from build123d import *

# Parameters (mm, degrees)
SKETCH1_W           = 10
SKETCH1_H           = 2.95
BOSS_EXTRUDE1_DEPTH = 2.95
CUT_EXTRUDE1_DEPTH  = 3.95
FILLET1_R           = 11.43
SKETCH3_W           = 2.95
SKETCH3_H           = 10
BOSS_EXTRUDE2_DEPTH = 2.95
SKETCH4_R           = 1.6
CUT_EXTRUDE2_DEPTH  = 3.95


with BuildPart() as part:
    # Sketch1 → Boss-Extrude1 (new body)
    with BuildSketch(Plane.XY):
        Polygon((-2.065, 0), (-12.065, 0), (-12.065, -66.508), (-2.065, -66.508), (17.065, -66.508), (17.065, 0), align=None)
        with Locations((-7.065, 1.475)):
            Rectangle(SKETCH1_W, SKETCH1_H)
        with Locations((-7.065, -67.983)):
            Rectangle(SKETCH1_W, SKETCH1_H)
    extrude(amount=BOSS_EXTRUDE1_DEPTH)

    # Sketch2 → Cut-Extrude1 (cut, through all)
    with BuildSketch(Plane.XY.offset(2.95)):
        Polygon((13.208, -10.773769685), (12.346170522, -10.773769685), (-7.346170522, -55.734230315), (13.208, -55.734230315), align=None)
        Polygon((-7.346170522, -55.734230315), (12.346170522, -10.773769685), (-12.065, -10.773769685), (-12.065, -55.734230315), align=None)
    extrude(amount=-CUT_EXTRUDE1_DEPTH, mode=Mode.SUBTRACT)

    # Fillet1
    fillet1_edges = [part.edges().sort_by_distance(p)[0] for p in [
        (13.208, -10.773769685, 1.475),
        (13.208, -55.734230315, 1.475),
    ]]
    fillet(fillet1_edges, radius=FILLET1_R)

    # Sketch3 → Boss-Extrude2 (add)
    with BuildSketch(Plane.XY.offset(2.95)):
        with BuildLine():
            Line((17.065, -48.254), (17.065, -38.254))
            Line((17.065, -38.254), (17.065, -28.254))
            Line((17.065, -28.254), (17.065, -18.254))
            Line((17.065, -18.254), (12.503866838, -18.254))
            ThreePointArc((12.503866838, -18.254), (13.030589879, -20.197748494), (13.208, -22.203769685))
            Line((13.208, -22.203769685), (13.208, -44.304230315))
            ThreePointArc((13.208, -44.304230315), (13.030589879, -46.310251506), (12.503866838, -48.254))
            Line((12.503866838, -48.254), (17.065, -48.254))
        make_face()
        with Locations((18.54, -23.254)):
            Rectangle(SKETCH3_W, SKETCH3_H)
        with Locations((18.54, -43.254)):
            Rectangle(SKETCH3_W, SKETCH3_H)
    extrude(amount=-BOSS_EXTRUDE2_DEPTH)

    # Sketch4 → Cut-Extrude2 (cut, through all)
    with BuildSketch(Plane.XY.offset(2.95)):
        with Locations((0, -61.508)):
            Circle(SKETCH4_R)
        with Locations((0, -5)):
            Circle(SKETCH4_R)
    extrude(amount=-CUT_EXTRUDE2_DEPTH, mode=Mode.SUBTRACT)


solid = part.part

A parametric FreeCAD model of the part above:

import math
import FreeCAD as App
import Part
import Sketcher
from FreeCAD import Vector
Q = App.Units.Quantity


def edges_at(feature, points):
    """Names of the edges that pass closest to the given points."""
    edges = feature.Shape.Edges
    near = lambda p: min(range(len(edges)), key=lambda i: edges[i].distToShape(Part.Vertex(*p))[0])
    return sorted({f"Edge{near(p) + 1}" for p in points})


def add_polygon(sketch, points):
    """Adds a closed chain of lines whose ends are joined by coincident constraints."""
    first, n = sketch.GeometryCount, len(points)
    for a, b in zip(points, points[1:] + points[:1]):
        sketch.addGeometry(Part.LineSegment(App.Vector(*a, 0), App.Vector(*b, 0)), False)
    for i in range(n):
        sketch.addConstraint(Sketcher.Constraint("Coincident", first + i, 2, first + (i + 1) % n, 1))

doc = App.newDocument("Part")
params = doc.addObject("Spreadsheet::Sheet", "Params")
for row, (alias, value) in enumerate([
    ("pad1_length", "2.95 mm"),
    ("sketch2_width", "0.995 in"),
    ("fillet_radius", "0.45 in"),
    ("sketch3_radius", "0.45 in"),
    ("pad2_length", "2.95 mm"),
], start=1):
    params.set(f"A{row}", alias)
    params.set(f"B{row}", "=" + value)
    params.setAlias(f"B{row}", alias)

body = doc.addObject("PartDesign::Body", "Body")

sketch1 = body.newObject("Sketcher::SketchObject", "Sketch")
sketch1.AttachmentSupport = (doc.getObject("XY_Plane"), [""])
sketch1.MapMode = "FlatFace"
add_polygon(sketch1, [(-2.065, -66.508), (17.065, -66.508), (17.065, 0), (-2.065, 0), (-2.065, 2.95), (-12.065, 2.95), (-12.065, -69.458), (-2.065, -69.458)])
sketch1.addConstraint([
    Sketcher.Constraint("Horizontal", 0),
    Sketcher.Constraint("Vertical", 1),
    Sketcher.Constraint("Horizontal", 2),
    Sketcher.Constraint("Vertical", 3),
    Sketcher.Constraint("Horizontal", 4),
    Sketcher.Constraint("Vertical", 5),
    Sketcher.Constraint("Horizontal", 6),
    Sketcher.Constraint("Vertical", 7),
    Sketcher.Constraint("PointOnObject", 1, 2, -1),
    Sketcher.Constraint("Vertical", 3, 2, 6, 2),
    Sketcher.Constraint("Equal", 3, 7),
    Sketcher.Constraint("DistanceX", 4, 2, -1, 1, Q("0.475 in")),
    Sketcher.Constraint("DistanceX", 0, 1, 0, 2, 19.13),
    Sketcher.Constraint("DistanceX", 4, 2, 4, 1, 10.0),
    Sketcher.Constraint("DistanceY", 1, 1, 1, 2, 66.508),
    Sketcher.Constraint("DistanceY", 3, 1, 3, 2, 2.95),
])
pad1 = body.newObject("PartDesign::Pad", "Pad")
pad1.Profile = sketch1
pad1.setExpression("Length", "Params.pad1_length")

sketch2 = body.newObject("Sketcher::SketchObject", "Sketch001")
sketch2.AttachmentSupport = (doc.getObject("XY_Plane"), [""])
sketch2.MapMode = "FlatFace"
sketch2.AttachmentOffset = App.Placement(Vector(0, 0, 2.95), App.Rotation())
add_polygon(sketch2, [(13.208, -10.77377), (-12.065, -10.77377), (-12.065, -55.73423), (13.208, -55.73423)])
sketch2.addConstraint([
    Sketcher.Constraint("Horizontal", 0),
    Sketcher.Constraint("Vertical", 1),
    Sketcher.Constraint("Horizontal", 2),
    Sketcher.Constraint("Vertical", 3),
    Sketcher.Constraint("DistanceX", 0, 2, 0, 1, Q("0.995 in")),
    Sketcher.Constraint("DistanceX", -1, 1, 2, 2, Q("0.52 in")),
    Sketcher.Constraint("DistanceY", 1, 2, 1, 1, 44.960461),
    Sketcher.Constraint("DistanceY", 0, 2, -1, 1, 10.77377),
])
sketch2.setExpression("Constraints[8]", "Params.sketch2_width")
pocket1 = body.newObject("PartDesign::Pocket", "Pocket")
pocket1.Profile = sketch2
pocket1.Type = "ThroughAll"
doc.recompute()

fillet = body.newObject("PartDesign::Fillet", "Fillet")
fillet.Base = (pocket1, edges_at(pocket1, [(13.208, -10.774, 1.475), (13.208, -55.734, 1.475)]))
fillet.setExpression("Radius", "Params.fillet_radius")

sketch3 = body.newObject("Sketcher::SketchObject", "Sketch002")
sketch3.AttachmentSupport = (doc.getObject("XY_Plane"), [""])
sketch3.MapMode = "FlatFace"
sketch3.AttachmentOffset = App.Placement(Vector(0, 0, 2.95), App.Rotation())
sketch3.addGeometry([
    Part.LineSegment(Vector(17.065, -38.254, 0), Vector(17.065, -28.254, 0)),
    Part.LineSegment(Vector(17.065, -28.254, 0), Vector(20.015, -28.254, 0)),
    Part.LineSegment(Vector(20.015, -28.254, 0), Vector(20.015, -18.254, 0)),
    Part.LineSegment(Vector(20.015, -18.254, 0), Vector(12.503867, -18.254, 0)),
    Part.ArcOfCircle(Part.Circle(Vector(1.778, -22.20377, 0), Vector(0, 0, 1), 11.43), math.radians(0), math.radians(20.216085)),
    Part.LineSegment(Vector(13.208, -22.20377, 0), Vector(13.208, -44.30423, 0)),
    Part.ArcOfCircle(Part.Circle(Vector(1.778, -44.30423, 0), Vector(0, 0, 1), 11.43), math.radians(-20.216085), math.radians(0)),
    Part.LineSegment(Vector(12.503867, -48.254, 0), Vector(20.015, -48.254, 0)),
    Part.LineSegment(Vector(20.015, -48.254, 0), Vector(20.015, -38.254, 0)),
    Part.LineSegment(Vector(20.015, -38.254, 0), Vector(17.065, -38.254, 0)),
], False)
sketch3.addConstraint([
    Sketcher.Constraint("Coincident", 0, 2, 1, 1),
    Sketcher.Constraint("Coincident", 1, 2, 2, 1),
    Sketcher.Constraint("Coincident", 2, 2, 3, 1),
    Sketcher.Constraint("Coincident", 3, 2, 4, 2),
    Sketcher.Constraint("Tangent", 4, 1, 5, 1),
    Sketcher.Constraint("Tangent", 5, 2, 6, 2),
    Sketcher.Constraint("Coincident", 6, 1, 7, 1),
    Sketcher.Constraint("Coincident", 7, 2, 8, 1),
    Sketcher.Constraint("Coincident", 8, 2, 9, 1),
    Sketcher.Constraint("Coincident", 9, 2, 0, 1),
    Sketcher.Constraint("Vertical", 0),
    Sketcher.Constraint("Horizontal", 1),
    Sketcher.Constraint("Vertical", 2),
    Sketcher.Constraint("Horizontal", 3),
    Sketcher.Constraint("Vertical", 5),
    Sketcher.Constraint("Horizontal", 7),
    Sketcher.Constraint("Vertical", 8),
    Sketcher.Constraint("Horizontal", 9),
    Sketcher.Constraint("Equal", 4, 6),
    Sketcher.Constraint("Vertical", 3, 2, 6, 1),
    Sketcher.Constraint("Vertical", 2, 2, 7, 2),
    Sketcher.Constraint("Equal", 0, 2),
    Sketcher.Constraint("Equal", 2, 8),
    Sketcher.Constraint("Radius", 4, Q("0.45 in")),
    Sketcher.Constraint("DistanceX", -1, 1, 4, 3, Q("0.07 in")),
    Sketcher.Constraint("DistanceX", 1, 1, 1, 2, 2.95),
    Sketcher.Constraint("DistanceY", 0, 1, 0, 2, 10.0),
    Sketcher.Constraint("DistanceY", 5, 2, 5, 1, 22.100461),
    Sketcher.Constraint("DistanceX", -1, 1, 0, 2, 17.065),
    Sketcher.Constraint("DistanceY", 0, 2, -1, 1, 28.254),
])
sketch3.setExpression("Constraints[23]", "Params.sketch3_radius")
pad2 = body.newObject("PartDesign::Pad", "Pad001")
pad2.Profile = sketch3
pad2.setExpression("Length", "Params.pad2_length")
pad2.Reversed = True

sketch4 = body.newObject("Sketcher::SketchObject", "Sketch003")
sketch4.AttachmentSupport = (doc.getObject("XY_Plane"), [""])
sketch4.MapMode = "FlatFace"
sketch4.AttachmentOffset = App.Placement(Vector(0, 0, 2.95), App.Rotation())
sketch4.addGeometry([
    Part.Circle(Vector(0, -61.508, 0), Vector(0, 0, 1), 1.6),
    Part.Circle(Vector(0, -5, 0), Vector(0, 0, 1), 1.6),
], False)
sketch4.addConstraint([
    Sketcher.Constraint("Equal", 0, 1),
    Sketcher.Constraint("PointOnObject", 0, 3, -2),
    Sketcher.Constraint("PointOnObject", 1, 3, -2),
    Sketcher.Constraint("Diameter", 0, 3.2),
    Sketcher.Constraint("DistanceY", 0, 3, -1, 1, 61.508),
    Sketcher.Constraint("DistanceY", 1, 3, -1, 1, 5.0),
])
pocket2 = body.newObject("PartDesign::Pocket", "Pocket001")
pocket2.Profile = sketch4
pocket2.Type = "ThroughAll"

doc.recompute()
